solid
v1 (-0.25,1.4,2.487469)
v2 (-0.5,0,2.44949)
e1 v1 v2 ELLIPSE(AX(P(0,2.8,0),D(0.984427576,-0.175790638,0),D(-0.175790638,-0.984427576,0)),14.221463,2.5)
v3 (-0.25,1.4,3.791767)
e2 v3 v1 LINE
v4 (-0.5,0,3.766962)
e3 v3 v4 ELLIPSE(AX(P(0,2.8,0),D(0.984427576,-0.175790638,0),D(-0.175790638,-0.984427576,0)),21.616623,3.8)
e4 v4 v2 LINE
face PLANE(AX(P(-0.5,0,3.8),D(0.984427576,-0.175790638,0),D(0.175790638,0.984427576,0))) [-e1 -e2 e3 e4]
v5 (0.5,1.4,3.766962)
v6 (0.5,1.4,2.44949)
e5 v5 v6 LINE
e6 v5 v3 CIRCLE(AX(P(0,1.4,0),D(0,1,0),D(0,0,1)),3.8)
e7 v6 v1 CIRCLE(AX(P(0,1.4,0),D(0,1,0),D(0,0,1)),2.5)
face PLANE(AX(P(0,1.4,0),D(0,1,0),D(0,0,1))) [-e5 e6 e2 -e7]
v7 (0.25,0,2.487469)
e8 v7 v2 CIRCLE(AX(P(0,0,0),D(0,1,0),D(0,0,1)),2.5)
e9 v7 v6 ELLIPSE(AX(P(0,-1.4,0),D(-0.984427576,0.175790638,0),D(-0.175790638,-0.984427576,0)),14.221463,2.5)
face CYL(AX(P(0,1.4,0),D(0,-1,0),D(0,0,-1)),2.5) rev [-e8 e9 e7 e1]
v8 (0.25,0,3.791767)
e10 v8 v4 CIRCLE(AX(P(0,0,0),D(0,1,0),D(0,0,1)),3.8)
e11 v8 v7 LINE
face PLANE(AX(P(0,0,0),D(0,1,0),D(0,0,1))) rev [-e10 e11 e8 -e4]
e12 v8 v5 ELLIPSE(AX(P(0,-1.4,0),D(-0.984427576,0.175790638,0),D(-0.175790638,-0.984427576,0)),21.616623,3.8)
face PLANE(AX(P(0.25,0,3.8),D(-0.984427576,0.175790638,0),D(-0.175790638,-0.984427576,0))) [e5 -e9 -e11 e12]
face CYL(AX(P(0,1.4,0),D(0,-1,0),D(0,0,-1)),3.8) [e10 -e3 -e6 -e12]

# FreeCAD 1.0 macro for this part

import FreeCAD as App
import Part
import Sketcher

V = App.Vector

doc = App.newDocument("Part")
body = doc.addObject("PartDesign::Body", "Body")

sketch1 = body.newObject("Sketcher::SketchObject", "Sketch")
sketch1.AttachmentSupport = (doc.getObject("XZ_Plane"), [""])
sketch1.MapMode = "FlatFace"
sketch1.addGeometry(Part.Circle(V(0, 0, 0), V(0, 0, 1), 3.8), False)
sketch1.addGeometry(Part.Circle(V(0, 0, 0), V(0, 0, 1), 2.5), False)
sketch1.addConstraint(Sketcher.Constraint("Coincident", 0, 3, -1, 1))
sketch1.addConstraint(Sketcher.Constraint("Coincident", 1, 3, -1, 1))
sketch1.addConstraint(Sketcher.Constraint("Diameter", 1, 5.0))
sketch1.addConstraint(Sketcher.Constraint("Diameter", 0, 7.6))
pad1 = body.newObject("PartDesign::Pad", "Pad")
pad1.Profile = sketch1
pad1.Length = 1.4
pad1.Reversed = True

sketch2 = body.newObject("Sketcher::SketchObject", "Sketch001")
sketch2.AttachmentSupport = (doc.getObject("XY_Plane"), [""])
sketch2.MapMode = "FlatFace"
sketch2.addGeometry(Part.LineSegment(V(-0.2, 1.4, 0), V(-0.5, 0, 0)), False)
sketch2.addGeometry(Part.LineSegment(V(-0.5, 0, 0), V(0.2, 0, 0)), False)
sketch2.addGeometry(Part.LineSegment(V(0.2, 0, 0), V(0.5, 1.4, 0)), False)
sketch2.addGeometry(Part.LineSegment(V(0.5, 1.4, 0), V(-0.2, 1.4, 0)), False)
sketch2.addConstraint(Sketcher.Constraint("Coincident", 0, 2, 1, 1))
sketch2.addConstraint(Sketcher.Constraint("Coincident", 1, 2, 2, 1))
sketch2.addConstraint(Sketcher.Constraint("Coincident", 2, 2, 3, 1))
sketch2.addConstraint(Sketcher.Constraint("Coincident", 3, 2, 0, 1))
sketch2.addConstraint(Sketcher.Constraint("Horizontal", 1))
sketch2.addConstraint(Sketcher.Constraint("Horizontal", 3))
sketch2.addConstraint(Sketcher.Constraint("PointOnObject", 0, 2, -1))
sketch2.addConstraint(Sketcher.Constraint("Parallel", 0, 2))
sketch2.addConstraint(Sketcher.Constraint("DistanceX", 0, 2, 2, 2, 1.0))
sketch2.addConstraint(Sketcher.Constraint("DistanceX", 1, 1, 1, 2, 0.75))
sketch2.addConstraint(Sketcher.Constraint("DistanceX", 0, 2, -1, 1, 0.5))
sketch2.addConstraint(Sketcher.Constraint("DistanceY", -1, 1, 2, 2, 1.4))
pocket1 = body.newObject("PartDesign::Pocket", "Pocket")
pocket1.Profile = sketch2
pocket1.Type = "ThroughAll"
pocket1.Reversed = True

doc.recompute()
